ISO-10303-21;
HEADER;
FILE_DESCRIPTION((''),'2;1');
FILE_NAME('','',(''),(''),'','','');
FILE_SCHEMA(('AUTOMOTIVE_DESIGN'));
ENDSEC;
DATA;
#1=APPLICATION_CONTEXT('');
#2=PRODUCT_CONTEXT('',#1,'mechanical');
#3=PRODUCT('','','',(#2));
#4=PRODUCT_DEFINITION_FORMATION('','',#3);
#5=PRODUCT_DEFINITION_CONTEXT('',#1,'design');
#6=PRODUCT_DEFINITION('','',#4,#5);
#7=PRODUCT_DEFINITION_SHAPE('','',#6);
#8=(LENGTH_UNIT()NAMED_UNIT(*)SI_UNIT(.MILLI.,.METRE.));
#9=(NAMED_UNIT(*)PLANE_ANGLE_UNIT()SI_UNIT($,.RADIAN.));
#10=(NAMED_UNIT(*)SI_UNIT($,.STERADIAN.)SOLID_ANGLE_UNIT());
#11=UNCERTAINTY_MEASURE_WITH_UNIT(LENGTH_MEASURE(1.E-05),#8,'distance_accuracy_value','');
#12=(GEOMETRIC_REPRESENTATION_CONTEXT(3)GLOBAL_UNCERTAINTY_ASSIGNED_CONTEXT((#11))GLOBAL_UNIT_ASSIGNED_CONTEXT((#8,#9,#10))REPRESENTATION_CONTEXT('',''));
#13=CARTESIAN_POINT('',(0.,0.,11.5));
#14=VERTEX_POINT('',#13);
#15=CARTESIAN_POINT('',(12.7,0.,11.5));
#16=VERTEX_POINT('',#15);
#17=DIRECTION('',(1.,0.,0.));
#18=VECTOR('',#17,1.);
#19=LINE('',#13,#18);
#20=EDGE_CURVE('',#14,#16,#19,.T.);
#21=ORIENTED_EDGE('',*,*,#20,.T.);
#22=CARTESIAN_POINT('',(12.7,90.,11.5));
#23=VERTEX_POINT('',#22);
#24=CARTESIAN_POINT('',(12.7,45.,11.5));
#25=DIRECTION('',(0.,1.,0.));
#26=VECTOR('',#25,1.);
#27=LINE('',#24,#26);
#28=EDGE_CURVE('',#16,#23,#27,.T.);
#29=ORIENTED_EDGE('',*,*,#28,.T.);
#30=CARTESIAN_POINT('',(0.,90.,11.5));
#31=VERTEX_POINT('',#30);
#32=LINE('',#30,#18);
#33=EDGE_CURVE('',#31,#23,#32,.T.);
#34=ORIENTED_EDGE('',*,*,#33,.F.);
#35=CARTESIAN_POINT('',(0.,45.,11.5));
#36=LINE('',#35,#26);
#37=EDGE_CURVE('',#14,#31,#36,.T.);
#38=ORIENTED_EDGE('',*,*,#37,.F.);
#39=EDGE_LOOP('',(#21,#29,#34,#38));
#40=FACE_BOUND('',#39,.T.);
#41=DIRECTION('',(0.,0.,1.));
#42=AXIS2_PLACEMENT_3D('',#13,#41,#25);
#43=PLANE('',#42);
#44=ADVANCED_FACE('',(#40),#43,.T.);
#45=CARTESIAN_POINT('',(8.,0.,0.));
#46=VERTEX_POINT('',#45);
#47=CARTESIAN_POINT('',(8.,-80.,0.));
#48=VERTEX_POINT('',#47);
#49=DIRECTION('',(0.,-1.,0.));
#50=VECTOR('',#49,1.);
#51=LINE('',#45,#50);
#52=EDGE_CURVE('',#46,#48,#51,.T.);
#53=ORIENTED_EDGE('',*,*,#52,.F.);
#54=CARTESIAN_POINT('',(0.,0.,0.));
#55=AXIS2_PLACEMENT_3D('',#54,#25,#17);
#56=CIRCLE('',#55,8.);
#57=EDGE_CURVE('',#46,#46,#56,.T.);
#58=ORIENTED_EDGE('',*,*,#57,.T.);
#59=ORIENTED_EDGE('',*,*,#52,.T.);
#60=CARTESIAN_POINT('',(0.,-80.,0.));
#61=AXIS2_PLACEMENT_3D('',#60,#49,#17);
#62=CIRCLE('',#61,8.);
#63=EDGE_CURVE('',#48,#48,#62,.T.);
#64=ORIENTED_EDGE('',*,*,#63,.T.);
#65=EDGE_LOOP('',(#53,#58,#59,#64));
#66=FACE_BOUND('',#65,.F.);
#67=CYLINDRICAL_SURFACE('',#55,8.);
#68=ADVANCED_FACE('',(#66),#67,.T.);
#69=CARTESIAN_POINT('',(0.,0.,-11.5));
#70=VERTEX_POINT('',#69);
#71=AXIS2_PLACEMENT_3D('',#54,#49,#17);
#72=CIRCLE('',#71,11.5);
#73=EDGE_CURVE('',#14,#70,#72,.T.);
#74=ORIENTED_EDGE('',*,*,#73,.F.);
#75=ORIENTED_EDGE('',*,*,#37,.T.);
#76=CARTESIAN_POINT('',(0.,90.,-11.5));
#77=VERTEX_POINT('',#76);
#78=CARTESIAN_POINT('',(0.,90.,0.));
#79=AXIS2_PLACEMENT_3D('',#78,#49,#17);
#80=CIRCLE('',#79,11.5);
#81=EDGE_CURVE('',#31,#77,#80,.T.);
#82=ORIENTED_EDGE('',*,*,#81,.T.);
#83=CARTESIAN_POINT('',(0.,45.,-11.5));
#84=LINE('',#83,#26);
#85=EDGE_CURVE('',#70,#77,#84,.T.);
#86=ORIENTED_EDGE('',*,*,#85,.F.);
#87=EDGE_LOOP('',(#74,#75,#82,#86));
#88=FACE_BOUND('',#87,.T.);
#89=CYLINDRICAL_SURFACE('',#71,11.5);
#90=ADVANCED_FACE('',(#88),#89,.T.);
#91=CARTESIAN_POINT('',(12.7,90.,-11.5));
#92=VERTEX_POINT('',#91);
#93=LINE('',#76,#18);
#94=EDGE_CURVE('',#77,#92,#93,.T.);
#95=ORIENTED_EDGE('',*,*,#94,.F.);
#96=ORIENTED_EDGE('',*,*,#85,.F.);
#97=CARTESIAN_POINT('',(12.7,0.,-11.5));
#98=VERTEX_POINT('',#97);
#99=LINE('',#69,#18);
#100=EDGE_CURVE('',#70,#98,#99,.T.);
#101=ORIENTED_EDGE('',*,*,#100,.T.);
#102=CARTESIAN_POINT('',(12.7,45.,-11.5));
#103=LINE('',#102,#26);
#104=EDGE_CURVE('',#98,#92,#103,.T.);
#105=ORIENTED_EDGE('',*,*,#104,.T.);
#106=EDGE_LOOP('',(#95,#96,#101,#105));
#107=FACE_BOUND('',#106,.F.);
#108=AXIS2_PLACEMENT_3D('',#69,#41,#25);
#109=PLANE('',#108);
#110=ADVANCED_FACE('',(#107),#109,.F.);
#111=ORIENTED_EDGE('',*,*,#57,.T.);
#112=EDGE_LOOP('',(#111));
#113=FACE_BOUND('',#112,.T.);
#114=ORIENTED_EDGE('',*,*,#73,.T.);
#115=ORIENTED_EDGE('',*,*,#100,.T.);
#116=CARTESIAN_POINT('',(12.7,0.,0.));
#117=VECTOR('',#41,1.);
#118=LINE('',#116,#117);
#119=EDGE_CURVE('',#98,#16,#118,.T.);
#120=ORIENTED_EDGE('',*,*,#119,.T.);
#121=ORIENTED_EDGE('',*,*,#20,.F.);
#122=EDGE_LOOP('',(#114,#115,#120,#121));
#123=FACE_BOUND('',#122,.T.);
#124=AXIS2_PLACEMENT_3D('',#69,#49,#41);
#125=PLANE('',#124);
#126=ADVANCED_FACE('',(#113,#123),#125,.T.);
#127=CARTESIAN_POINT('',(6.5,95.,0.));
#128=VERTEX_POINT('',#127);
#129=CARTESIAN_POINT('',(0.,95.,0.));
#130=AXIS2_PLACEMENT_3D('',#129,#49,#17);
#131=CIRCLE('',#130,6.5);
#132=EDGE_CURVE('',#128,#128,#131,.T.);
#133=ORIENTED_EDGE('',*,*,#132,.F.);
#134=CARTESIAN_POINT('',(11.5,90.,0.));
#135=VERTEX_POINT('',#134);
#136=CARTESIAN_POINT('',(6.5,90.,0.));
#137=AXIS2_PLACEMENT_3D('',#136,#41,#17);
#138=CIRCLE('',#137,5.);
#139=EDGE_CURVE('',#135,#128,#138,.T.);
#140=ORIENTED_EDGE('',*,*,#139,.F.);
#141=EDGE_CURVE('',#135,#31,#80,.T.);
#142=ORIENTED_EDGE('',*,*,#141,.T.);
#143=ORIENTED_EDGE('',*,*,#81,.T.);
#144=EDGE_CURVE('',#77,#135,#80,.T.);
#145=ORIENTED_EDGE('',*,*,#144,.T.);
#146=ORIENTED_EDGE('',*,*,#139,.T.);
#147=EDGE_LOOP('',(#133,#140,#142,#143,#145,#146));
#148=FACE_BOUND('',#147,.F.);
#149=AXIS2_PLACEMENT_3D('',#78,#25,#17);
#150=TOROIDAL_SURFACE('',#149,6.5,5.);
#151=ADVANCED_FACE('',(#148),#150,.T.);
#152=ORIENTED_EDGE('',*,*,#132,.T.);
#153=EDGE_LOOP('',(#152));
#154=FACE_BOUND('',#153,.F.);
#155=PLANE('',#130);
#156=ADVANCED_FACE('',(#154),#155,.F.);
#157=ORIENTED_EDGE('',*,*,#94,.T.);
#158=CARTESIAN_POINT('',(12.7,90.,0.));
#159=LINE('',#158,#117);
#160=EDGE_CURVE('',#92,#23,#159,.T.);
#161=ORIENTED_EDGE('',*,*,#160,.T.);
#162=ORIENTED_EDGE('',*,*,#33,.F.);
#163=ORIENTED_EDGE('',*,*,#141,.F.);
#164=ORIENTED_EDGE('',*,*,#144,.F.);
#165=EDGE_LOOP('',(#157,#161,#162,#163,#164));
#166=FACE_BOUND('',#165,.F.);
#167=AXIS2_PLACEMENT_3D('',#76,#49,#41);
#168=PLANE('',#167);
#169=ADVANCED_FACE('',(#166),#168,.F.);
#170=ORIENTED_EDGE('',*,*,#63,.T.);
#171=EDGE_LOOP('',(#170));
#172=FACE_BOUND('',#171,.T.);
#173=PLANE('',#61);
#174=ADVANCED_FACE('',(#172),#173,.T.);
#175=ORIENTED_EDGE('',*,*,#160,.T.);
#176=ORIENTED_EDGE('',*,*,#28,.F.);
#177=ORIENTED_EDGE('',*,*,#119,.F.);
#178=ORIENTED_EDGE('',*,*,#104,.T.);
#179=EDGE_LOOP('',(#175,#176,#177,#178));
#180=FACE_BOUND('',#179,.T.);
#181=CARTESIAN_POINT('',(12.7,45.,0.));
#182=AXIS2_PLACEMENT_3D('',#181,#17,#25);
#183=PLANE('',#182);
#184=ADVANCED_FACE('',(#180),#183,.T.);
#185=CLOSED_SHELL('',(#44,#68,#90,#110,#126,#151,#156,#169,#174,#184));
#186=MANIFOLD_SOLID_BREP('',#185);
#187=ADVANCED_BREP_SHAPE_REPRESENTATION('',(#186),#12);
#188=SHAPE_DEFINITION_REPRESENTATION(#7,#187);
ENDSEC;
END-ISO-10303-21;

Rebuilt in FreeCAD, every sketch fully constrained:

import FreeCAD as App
import Part
import Sketcher


def edges_at(feature, points):
    """Names of the edges that pass closest to the given points."""
    edges = feature.Shape.Edges
    near = lambda p: min(range(len(edges)), key=lambda i: edges[i].distToShape(Part.Vertex(*p))[0])
    return sorted({f"Edge{near(p) + 1}" for p in points})


def add_polygon(sketch, points):
    """Adds a closed chain of lines whose ends are joined by coincident constraints."""
    first, n = sketch.GeometryCount, len(points)
    for a, b in zip(points, points[1:] + points[:1]):
        sketch.addGeometry(Part.LineSegment(App.Vector(*a, 0), App.Vector(*b, 0)), False)
    for i in range(n):
        sketch.addConstraint(Sketcher.Constraint("Coincident", first + i, 2, first + (i + 1) % n, 1))

doc = App.newDocument("Part")
params = doc.addObject("Spreadsheet::Sheet", "Params")
for row, (alias, value) in enumerate([
    ("sketch1_diameter", "23 mm"),
    ("pad1_length", "95 mm"),
    ("sketch2_diameter", "16 mm"),
    ("pad2_length", "80 mm"),
    ("fillet_radius", "5 mm"),
    ("sketch3_width", "90 mm"),
    ("sketch3_height", "23 mm"),
    ("pad3_length", "12.7 mm"),
], start=1):
    params.set(f"A{row}", alias)
    params.set(f"B{row}", "=" + value)
    params.setAlias(f"B{row}", alias)

body = doc.addObject("PartDesign::Body", "Body")

# Sketch on XZ plane
sketch1 = doc.addObject("Sketcher::SketchObject", "Sketch")
body.addObject(sketch1)
sketch1.AttachmentSupport = (doc.XZ_Plane, [""])
sketch1.MapMode = "FlatFace"
sketch1.addGeometry(Part.Circle(App.Vector(0, 0, 0), App.Vector(0, 0, 1), 12), False)
sketch1.addConstraint([
    Sketcher.Constraint("Coincident", 0, 3, -1, 1),
    Sketcher.Constraint("Diameter", 0, 23.0),
])
sketch1.setExpression("Constraints[1]", "Params.sketch1_diameter")
pad1 = doc.addObject("PartDesign::Pad", "Pad")
body.addObject(pad1)
pad1.Profile = sketch1
pad1.setExpression("Length", "Params.pad1_length")
pad1.Reversed = True

# Sketch on XZ plane
sketch2 = doc.addObject("Sketcher::SketchObject", "Sketch001")
body.addObject(sketch2)
sketch2.AttachmentSupport = (doc.XZ_Plane, [""])
sketch2.MapMode = "FlatFace"
sketch2.addGeometry(Part.Circle(App.Vector(0, 0, 0), App.Vector(0, 0, 1), 8), False)
sketch2.addConstraint([
    Sketcher.Constraint("Coincident", 0, 3, -1, 1),
    Sketcher.Constraint("Diameter", 0, 16.0),
])
sketch2.setExpression("Constraints[1]", "Params.sketch2_diameter")
pad2 = doc.addObject("PartDesign::Pad", "Pad001")
body.addObject(pad2)
pad2.Profile = sketch2
pad2.setExpression("Length", "Params.pad2_length")
doc.recompute()

fillet = doc.addObject("PartDesign::Fillet", "Fillet")
body.addObject(fillet)
fillet.Base = (pad2, edges_at(pad2, [(-11.5, 95, 0)]))
fillet.setExpression("Radius", "Params.fillet_radius")

# Sketch on YZ plane
sketch3 = doc.addObject("Sketcher::SketchObject", "Sketch002")
body.addObject(sketch3)
sketch3.AttachmentSupport = (doc.YZ_Plane, [""])
sketch3.MapMode = "FlatFace"
add_polygon(sketch3, [(0, 12), (0, -12), (90, -12), (90, 12)])  # lines 0-3
sketch3.addConstraint([
    Sketcher.Constraint("Vertical", 0),
    Sketcher.Constraint("Horizontal", 1),
    Sketcher.Constraint("Vertical", 2),
    Sketcher.Constraint("Horizontal", 3),
    Sketcher.Constraint("Symmetric", 0, 2, 3, 2, -1, 1),
    Sketcher.Constraint("DistanceX", 1, 1, 1, 2, 90.0),
    Sketcher.Constraint("DistanceY", 0, 2, 0, 1, 23.0),
])
sketch3.setExpression("Constraints[9]", "Params.sketch3_width")
sketch3.setExpression("Constraints[10]", "Params.sketch3_height")
pad3 = doc.addObject("PartDesign::Pad", "Pad002")
body.addObject(pad3)
pad3.Profile = sketch3
pad3.setExpression("Length", "Params.pad3_length")

doc.recompute()
